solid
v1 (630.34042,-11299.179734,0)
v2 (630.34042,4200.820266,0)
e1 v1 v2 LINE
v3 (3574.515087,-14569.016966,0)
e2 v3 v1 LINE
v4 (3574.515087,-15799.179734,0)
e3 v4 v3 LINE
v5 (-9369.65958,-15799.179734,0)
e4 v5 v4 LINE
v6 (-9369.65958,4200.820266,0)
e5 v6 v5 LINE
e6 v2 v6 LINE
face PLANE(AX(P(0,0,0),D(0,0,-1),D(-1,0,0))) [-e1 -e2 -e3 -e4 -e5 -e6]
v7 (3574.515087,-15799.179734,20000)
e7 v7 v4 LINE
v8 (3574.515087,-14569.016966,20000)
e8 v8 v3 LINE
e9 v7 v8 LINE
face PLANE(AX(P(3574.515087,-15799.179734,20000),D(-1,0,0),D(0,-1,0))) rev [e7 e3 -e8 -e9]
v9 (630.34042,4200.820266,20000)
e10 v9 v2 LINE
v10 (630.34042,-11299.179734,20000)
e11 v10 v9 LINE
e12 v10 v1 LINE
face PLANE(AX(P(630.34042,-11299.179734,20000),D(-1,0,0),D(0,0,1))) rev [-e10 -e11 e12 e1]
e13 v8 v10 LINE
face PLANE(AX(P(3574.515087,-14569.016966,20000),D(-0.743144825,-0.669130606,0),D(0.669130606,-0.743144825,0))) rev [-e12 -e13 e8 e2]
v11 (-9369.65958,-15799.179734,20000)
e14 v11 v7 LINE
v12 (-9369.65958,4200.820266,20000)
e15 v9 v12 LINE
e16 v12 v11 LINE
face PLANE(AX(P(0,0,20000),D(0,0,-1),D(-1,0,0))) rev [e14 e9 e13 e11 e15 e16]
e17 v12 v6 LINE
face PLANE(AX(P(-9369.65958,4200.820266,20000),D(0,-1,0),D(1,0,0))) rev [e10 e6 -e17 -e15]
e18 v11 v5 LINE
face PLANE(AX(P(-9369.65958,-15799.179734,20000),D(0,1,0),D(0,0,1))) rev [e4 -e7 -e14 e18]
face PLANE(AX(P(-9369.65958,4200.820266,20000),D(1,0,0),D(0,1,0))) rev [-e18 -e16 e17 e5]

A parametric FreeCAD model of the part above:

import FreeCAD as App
import Part
import Sketcher
from FreeCAD import Vector
Q = App.Units.Quantity

doc = App.newDocument("Part")
params = doc.addObject("Spreadsheet::Sheet", "Params")
for row, (alias, value) in enumerate([
    ("sketch1_width", "10000 mm"),
    ("sketch1_height", "20000 mm"),
    ("sketch1_height2", "15500 mm"),
    ("sketch1_length", "4400 mm"),
    ("pad1_length", "20000 mm"),
], start=1):
    params.set(f"A{row}", alias)
    params.set(f"B{row}", "=" + value)
    params.setAlias(f"B{row}", alias)

body = doc.addObject("PartDesign::Body", "Body")

# Sketch on XY plane
sketch1 = body.newObject("Sketcher::SketchObject", "Sketch")
sketch1.AttachmentSupport = (doc.getObject("XY_Plane"), [""])
sketch1.MapMode = "FlatFace"
sketch1.addGeometry(Part.LineSegment(Vector(630, 4201, 0), Vector(-9370, 4201, 0)), False)
sketch1.addGeometry(Part.LineSegment(Vector(-9370, 4201, 0), Vector(-9370, -15799, 0)), False)
sketch1.addGeometry(Part.LineSegment(Vector(-9370, -15799, 0), Vector(3575, -15799, 0)), False)
sketch1.addGeometry(Part.LineSegment(Vector(3575, -15799, 0), Vector(3575, -14569, 0)), False)
sketch1.addGeometry(Part.LineSegment(Vector(3575, -14569, 0), Vector(630, -11299, 0)), False)
sketch1.addGeometry(Part.LineSegment(Vector(630, -11299, 0), Vector(630, 4201, 0)), False)
sketch1.addConstraint(Sketcher.Constraint("Coincident", 0, 2, 1, 1))
sketch1.addConstraint(Sketcher.Constraint("Coincident", 1, 2, 2, 1))
sketch1.addConstraint(Sketcher.Constraint("Coincident", 2, 2, 3, 1))
sketch1.addConstraint(Sketcher.Constraint("Coincident", 3, 2, 4, 1))
sketch1.addConstraint(Sketcher.Constraint("Coincident", 4, 2, 5, 1))
sketch1.addConstraint(Sketcher.Constraint("Coincident", 5, 2, 0, 1))
sketch1.addConstraint(Sketcher.Constraint("Horizontal", 0))
sketch1.addConstraint(Sketcher.Constraint("Vertical", 1))
sketch1.addConstraint(Sketcher.Constraint("Horizontal", 2))
sketch1.addConstraint(Sketcher.Constraint("Vertical", 3))
sketch1.addConstraint(Sketcher.Constraint("Vertical", 5))
sketch1.addConstraint(Sketcher.Constraint("DistanceX", 0, 2, 0, 1, Q("10000 mm")))
sketch1.addConstraint(Sketcher.Constraint("DistanceY", 1, 2, 1, 1, Q("20000 mm")))
sketch1.addConstraint(Sketcher.Constraint("DistanceY", 5, 1, 5, 2, Q("15500 mm")))
sketch1.addConstraint(Sketcher.Constraint("Angle", 4, Q("132 deg")))
sketch1.addConstraint(Sketcher.Constraint("Distance", 4, Q("4400 mm")))
sketch1.addConstraint(Sketcher.Constraint("DistanceX", 0, 2, -1, 1, Q("9369.65958 mm")))
sketch1.addConstraint(Sketcher.Constraint("DistanceY", -1, 1, 0, 2, Q("4200.820266 mm")))
sketch1.setExpression("Constraints[11]", "Params.sketch1_width")
sketch1.setExpression("Constraints[12]", "Params.sketch1_height")
sketch1.setExpression("Constraints[13]", "Params.sketch1_height2")
sketch1.setExpression("Constraints[15]", "Params.sketch1_length")
pad1 = body.newObject("PartDesign::Pad", "Pad")
pad1.Profile = sketch1
pad1.setExpression("Length", "Params.pad1_length")

doc.recompute()
